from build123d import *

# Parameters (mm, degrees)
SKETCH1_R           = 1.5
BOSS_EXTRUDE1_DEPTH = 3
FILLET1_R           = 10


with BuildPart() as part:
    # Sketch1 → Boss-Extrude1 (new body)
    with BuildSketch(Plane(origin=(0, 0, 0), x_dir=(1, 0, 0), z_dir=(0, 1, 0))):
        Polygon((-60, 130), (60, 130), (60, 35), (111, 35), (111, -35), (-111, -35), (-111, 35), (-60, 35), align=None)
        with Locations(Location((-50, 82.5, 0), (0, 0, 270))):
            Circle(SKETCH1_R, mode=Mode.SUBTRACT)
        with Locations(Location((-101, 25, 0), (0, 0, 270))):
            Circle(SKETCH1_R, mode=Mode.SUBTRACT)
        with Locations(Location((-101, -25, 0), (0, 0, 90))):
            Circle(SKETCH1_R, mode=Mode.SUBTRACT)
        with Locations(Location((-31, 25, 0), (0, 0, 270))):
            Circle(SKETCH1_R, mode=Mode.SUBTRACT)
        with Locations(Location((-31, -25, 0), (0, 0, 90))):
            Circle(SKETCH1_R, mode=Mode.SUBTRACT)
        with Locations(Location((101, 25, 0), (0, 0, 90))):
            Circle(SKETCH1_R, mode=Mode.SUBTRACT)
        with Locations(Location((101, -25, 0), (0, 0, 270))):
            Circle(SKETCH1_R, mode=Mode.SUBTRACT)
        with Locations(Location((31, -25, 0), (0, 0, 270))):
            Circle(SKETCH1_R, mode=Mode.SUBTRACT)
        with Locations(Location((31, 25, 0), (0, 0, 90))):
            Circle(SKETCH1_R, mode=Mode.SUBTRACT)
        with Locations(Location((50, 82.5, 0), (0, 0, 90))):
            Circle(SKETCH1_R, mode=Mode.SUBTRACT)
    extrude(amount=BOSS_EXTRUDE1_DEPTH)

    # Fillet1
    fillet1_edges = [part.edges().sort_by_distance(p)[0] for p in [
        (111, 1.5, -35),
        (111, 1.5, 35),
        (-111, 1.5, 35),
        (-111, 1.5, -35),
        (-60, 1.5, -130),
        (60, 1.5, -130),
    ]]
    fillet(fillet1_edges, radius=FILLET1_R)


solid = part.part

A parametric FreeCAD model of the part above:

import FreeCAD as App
import Part
import Sketcher
from FreeCAD import Vector


def edges_at(feature, points):
    """Names of the edges that pass closest to the given points."""
    edges = feature.Shape.Edges
    near = lambda p: min(range(len(edges)), key=lambda i: edges[i].distToShape(Part.Vertex(*p))[0])
    return sorted({f"Edge{near(p) + 1}" for p in points})


def add_polygon(sketch, points):
    """Adds a closed chain of lines whose ends are joined by coincident constraints."""
    first, n = sketch.GeometryCount, len(points)
    for a, b in zip(points, points[1:] + points[:1]):
        sketch.addGeometry(Part.LineSegment(App.Vector(*a, 0), App.Vector(*b, 0)), False)
    for i in range(n):
        sketch.addConstraint(Sketcher.Constraint("Coincident", first + i, 2, first + (i + 1) % n, 1))

doc = App.newDocument("Part")
params = doc.addObject("Spreadsheet::Sheet", "Params")
for row, (alias, value) in enumerate([
    ("sketch1_diameter", "3 mm"),
    ("sketch1_width", "120 mm"),
    ("sketch1_width2", "51 mm"),
    ("sketch1_height", "95 mm"),
    ("sketch1_height2", "70 mm"),
    ("pad1_length", "3 mm"),
    ("fillet_radius", "10 mm"),
], start=1):
    params.set(f"A{row}", alias)
    params.set(f"B{row}", "=" + value)
    params.setAlias(f"B{row}", alias)

body = doc.addObject("PartDesign::Body", "Body")

# Sketch on XZ plane
sketch1 = body.newObject("Sketcher::SketchObject", "Sketch")
sketch1.AttachmentSupport = (doc.getObject("XZ_Plane"), [""])
sketch1.MapMode = "FlatFace"
add_polygon(sketch1, [(60, -130), (-60, -130), (-60, -35), (-111, -35), (-111, 35), (111, 35), (111, -35), (60, -35)])  # lines 0-7
sketch1.addGeometry(Part.Circle(Vector(101, 25, 0), Vector(0, 0, 1), 1.5), False)  # 8
sketch1.addGeometry(Part.Circle(Vector(31, 25, 0), Vector(0, 0, 1), 1.5), False)  # 9
sketch1.addGeometry(Part.Circle(Vector(101, -25, 0), Vector(0, 0, 1), 1.5), False)  # 10
sketch1.addGeometry(Part.Circle(Vector(31, -25, 0), Vector(0, 0, 1), 1.5), False)  # 11
sketch1.addGeometry(Part.Circle(Vector(-31, 25, 0), Vector(0, 0, 1), 1.5), False)  # 12
sketch1.addGeometry(Part.Circle(Vector(-101, 25, 0), Vector(0, 0, 1), 1.5), False)  # 13
sketch1.addGeometry(Part.Circle(Vector(-31, -25, 0), Vector(0, 0, 1), 1.5), False)  # 14
sketch1.addGeometry(Part.Circle(Vector(-101, -25, 0), Vector(0, 0, 1), 1.5), False)  # 15
sketch1.addGeometry(Part.Circle(Vector(50, -82.5, 0), Vector(0, 0, 1), 1.5), False)  # 16
sketch1.addGeometry(Part.Circle(Vector(-50, -82.5, 0), Vector(0, 0, 1), 1.5), False)  # 17
sketch1.addConstraint([
    Sketcher.Constraint("Horizontal", 0),
    Sketcher.Constraint("Vertical", 1),
    Sketcher.Constraint("Horizontal", 2),
    Sketcher.Constraint("Vertical", 3),
    Sketcher.Constraint("Horizontal", 4),
    Sketcher.Constraint("Vertical", 5),
    Sketcher.Constraint("Horizontal", 6),
    Sketcher.Constraint("Vertical", 7),
    Sketcher.Constraint("Equal", 8, 9),
    Sketcher.Constraint("Equal", 9, 10),
    Sketcher.Constraint("Equal", 10, 11),
    Sketcher.Constraint("Equal", 11, 12),
    Sketcher.Constraint("Equal", 12, 13),
    Sketcher.Constraint("Equal", 13, 14),
    Sketcher.Constraint("Equal", 14, 15),
    Sketcher.Constraint("Equal", 15, 16),
    Sketcher.Constraint("Equal", 16, 17),
    Sketcher.Constraint("Symmetric", 11, 3, 12, 3, -1, 1),
    Sketcher.Constraint("Symmetric", 10, 3, 13, 3, -1, 1),
    Sketcher.Constraint("Symmetric", 9, 3, 14, 3, -1, 1),
    Sketcher.Constraint("Symmetric", 8, 3, 15, 3, -1, 1),
    Sketcher.Constraint("Symmetric", 2, 2, 4, 2, -1, 1),
    Sketcher.Constraint("Symmetric", 9, 3, 12, 3, -2),
    Sketcher.Constraint("Symmetric", 8, 3, 13, 3, -2),
    Sketcher.Constraint("Symmetric", 16, 3, 17, 3, -2),
    Sketcher.Constraint("Symmetric", 1, 2, 6, 2, -2),
    Sketcher.Constraint("Horizontal", 8, 3, 9, 3),
    Sketcher.Constraint("Diameter", 8, 3.0),
    Sketcher.Constraint("DistanceX", 0, 2, 0, 1, 120.0),
    Sketcher.Constraint("DistanceX", 2, 2, 2, 1, 51.0),
    Sketcher.Constraint("DistanceY", 1, 1, 1, 2, 95.0),
    Sketcher.Constraint("DistanceY", 3, 1, 3, 2, 70.0),
    Sketcher.Constraint("DistanceX", -1, 1, 8, 3, 101.0),
    Sketcher.Constraint("DistanceY", -1, 1, 8, 3, 25.0),
    Sketcher.Constraint("DistanceX", -1, 1, 9, 3, 31.0),
    Sketcher.Constraint("DistanceX", -1, 1, 16, 3, 50.0),
    Sketcher.Constraint("DistanceY", 16, 3, -1, 1, 82.5),
])
sketch1.setExpression("Constraints[35]", "Params.sketch1_diameter")
sketch1.setExpression("Constraints[36]", "Params.sketch1_width")
sketch1.setExpression("Constraints[37]", "Params.sketch1_width2")
sketch1.setExpression("Constraints[38]", "Params.sketch1_height")
sketch1.setExpression("Constraints[39]", "Params.sketch1_height2")
pad1 = body.newObject("PartDesign::Pad", "Pad")
pad1.Profile = sketch1
pad1.setExpression("Length", "Params.pad1_length")
pad1.Reversed = True
doc.recompute()

fillet = body.newObject("PartDesign::Fillet", "Fillet")
fillet.Base = (pad1, edges_at(pad1, [
    (111, 1.5, -35),
    (111, 1.5, 35),
    (-111, 1.5, 35),
    (-111, 1.5, -35),
    (-60, 1.5, -130),
    (60, 1.5, -130),
]))
fillet.setExpression("Radius", "Params.fillet_radius")

doc.recompute()
